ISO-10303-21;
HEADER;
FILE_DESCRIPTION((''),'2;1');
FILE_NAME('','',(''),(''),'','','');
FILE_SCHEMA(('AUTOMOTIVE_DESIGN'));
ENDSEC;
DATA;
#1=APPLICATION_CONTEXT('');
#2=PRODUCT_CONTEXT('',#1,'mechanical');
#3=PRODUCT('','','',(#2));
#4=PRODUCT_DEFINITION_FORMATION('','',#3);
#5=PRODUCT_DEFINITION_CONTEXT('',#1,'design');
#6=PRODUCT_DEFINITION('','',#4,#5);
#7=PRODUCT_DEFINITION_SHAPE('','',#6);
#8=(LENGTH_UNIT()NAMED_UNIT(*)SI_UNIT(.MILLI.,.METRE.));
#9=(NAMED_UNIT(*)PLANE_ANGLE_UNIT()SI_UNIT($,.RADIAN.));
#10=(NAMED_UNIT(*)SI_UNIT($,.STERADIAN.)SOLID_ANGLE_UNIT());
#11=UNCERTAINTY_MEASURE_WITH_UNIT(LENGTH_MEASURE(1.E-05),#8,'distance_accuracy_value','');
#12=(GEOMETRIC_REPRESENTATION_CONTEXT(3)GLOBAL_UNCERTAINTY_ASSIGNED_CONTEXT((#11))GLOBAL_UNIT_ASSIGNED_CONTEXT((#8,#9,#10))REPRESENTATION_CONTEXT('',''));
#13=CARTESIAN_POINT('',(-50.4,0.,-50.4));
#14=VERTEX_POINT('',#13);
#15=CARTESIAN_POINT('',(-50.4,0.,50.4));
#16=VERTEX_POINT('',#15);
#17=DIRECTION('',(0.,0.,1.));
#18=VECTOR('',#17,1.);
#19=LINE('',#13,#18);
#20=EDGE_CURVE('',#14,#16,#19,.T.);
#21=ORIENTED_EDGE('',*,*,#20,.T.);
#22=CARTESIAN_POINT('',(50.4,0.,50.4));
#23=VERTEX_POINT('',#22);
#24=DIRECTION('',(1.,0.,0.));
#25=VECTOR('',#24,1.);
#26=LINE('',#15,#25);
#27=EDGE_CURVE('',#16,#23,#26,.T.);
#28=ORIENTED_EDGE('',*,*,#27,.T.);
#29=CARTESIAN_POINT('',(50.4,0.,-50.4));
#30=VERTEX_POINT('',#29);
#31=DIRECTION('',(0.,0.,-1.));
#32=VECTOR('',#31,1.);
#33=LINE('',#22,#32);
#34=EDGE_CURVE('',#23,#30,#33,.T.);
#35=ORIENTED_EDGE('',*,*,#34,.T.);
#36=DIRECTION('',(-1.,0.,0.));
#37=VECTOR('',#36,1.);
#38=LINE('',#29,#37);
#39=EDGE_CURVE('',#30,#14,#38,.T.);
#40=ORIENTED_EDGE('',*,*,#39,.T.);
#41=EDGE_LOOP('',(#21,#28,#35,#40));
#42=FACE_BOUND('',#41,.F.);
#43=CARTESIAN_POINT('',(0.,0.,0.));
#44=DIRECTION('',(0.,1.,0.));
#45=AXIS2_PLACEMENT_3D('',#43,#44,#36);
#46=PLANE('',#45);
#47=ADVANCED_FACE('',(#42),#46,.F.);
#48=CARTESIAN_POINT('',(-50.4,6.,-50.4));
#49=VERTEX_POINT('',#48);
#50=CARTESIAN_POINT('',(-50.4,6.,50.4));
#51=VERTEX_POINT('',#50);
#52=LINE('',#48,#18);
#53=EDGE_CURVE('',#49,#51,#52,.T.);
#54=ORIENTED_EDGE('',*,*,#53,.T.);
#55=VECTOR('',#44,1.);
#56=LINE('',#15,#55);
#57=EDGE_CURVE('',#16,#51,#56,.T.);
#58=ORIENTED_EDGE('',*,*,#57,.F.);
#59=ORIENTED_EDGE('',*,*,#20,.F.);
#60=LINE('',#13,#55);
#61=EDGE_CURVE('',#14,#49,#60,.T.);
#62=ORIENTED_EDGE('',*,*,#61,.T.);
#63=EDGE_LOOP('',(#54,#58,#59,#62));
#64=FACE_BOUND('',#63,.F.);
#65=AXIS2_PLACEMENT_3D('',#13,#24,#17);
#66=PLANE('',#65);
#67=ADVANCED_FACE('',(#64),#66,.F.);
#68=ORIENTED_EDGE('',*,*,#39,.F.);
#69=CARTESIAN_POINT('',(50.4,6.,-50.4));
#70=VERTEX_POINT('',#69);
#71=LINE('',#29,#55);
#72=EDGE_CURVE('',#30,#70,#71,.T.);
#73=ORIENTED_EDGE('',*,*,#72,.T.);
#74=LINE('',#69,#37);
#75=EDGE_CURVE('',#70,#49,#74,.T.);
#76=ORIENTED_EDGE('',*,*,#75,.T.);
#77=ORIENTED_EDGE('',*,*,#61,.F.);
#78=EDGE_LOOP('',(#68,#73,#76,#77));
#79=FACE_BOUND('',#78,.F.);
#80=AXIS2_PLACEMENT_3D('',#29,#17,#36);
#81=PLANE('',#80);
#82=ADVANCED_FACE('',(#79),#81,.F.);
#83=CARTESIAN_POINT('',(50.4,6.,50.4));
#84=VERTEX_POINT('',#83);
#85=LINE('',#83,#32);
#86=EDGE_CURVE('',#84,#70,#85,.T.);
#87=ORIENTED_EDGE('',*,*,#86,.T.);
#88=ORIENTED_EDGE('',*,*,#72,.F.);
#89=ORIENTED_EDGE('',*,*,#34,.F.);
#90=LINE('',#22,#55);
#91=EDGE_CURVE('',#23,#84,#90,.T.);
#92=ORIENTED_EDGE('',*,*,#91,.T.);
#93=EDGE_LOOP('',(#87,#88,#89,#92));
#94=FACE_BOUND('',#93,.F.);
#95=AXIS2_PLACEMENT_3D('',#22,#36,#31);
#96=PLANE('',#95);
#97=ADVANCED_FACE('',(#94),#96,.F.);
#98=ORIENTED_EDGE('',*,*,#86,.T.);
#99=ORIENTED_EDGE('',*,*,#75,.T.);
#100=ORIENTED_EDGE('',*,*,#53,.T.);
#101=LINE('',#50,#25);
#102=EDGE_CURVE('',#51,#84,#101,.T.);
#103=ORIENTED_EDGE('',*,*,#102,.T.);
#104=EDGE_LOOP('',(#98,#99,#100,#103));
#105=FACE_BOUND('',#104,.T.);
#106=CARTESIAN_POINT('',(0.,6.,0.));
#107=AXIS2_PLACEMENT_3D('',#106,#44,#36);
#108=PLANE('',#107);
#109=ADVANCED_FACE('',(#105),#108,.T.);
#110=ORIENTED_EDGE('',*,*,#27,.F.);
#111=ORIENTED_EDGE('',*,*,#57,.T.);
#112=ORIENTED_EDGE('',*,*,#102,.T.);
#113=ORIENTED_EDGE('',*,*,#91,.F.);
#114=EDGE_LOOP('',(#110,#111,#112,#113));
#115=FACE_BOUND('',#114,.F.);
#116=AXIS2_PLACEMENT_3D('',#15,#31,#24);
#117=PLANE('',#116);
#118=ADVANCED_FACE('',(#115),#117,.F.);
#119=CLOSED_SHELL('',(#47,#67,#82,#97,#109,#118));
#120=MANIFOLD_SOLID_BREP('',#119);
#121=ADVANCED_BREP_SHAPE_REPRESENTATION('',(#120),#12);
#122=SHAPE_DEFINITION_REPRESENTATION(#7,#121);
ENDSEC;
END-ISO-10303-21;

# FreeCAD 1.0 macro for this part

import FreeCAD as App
import Part
import Sketcher
from FreeCAD import Vector

doc = App.newDocument("Part")
params = doc.addObject("Spreadsheet::Sheet", "Params")
for row, (alias, value) in enumerate([
    ("sketch1_width", "100.8 mm"),
    ("pad1_length", "6 mm"),
], start=1):
    params.set(f"A{row}", alias)
    params.set(f"B{row}", "=" + value)
    params.setAlias(f"B{row}", alias)

body = doc.addObject("PartDesign::Body", "Body")

# Sketch on XZ plane
sketch1 = body.newObject("Sketcher::SketchObject", "Sketch")
sketch1.AttachmentSupport = (doc.getObject("XZ_Plane"), [""])
sketch1.MapMode = "FlatFace"
sketch1.addGeometry([
    Part.LineSegment(Vector(-50, -50, 0), Vector(-50, 50, 0)),
    Part.LineSegment(Vector(-50, 50, 0), Vector(50, 50, 0)),
    Part.LineSegment(Vector(50, 50, 0), Vector(50, -50, 0)),
    Part.LineSegment(Vector(50, -50, 0), Vector(-50, -50, 0)),
], False)
sketch1.addConstraint([
    Sketcher.Constraint("Coincident", 0, 2, 1, 1),
    Sketcher.Constraint("Coincident", 1, 2, 2, 1),
    Sketcher.Constraint("Coincident", 2, 2, 3, 1),
    Sketcher.Constraint("Coincident", 3, 2, 0, 1),
    Sketcher.Constraint("Vertical", 0),
    Sketcher.Constraint("Horizontal", 1),
    Sketcher.Constraint("Vertical", 2),
    Sketcher.Constraint("Horizontal", 3),
    Sketcher.Constraint("Symmetric", 0, 2, 2, 2, -1, 1),
    Sketcher.Constraint("Equal", 3, 0),
    Sketcher.Constraint("DistanceX", 1, 1, 1, 2, 100.8),
])
sketch1.setExpression("Constraints[10]", "Params.sketch1_width")
pad1 = body.newObject("PartDesign::Pad", "Pad")
pad1.Profile = sketch1
pad1.setExpression("Length", "Params.pad1_length")
pad1.Reversed = True

doc.recompute()
